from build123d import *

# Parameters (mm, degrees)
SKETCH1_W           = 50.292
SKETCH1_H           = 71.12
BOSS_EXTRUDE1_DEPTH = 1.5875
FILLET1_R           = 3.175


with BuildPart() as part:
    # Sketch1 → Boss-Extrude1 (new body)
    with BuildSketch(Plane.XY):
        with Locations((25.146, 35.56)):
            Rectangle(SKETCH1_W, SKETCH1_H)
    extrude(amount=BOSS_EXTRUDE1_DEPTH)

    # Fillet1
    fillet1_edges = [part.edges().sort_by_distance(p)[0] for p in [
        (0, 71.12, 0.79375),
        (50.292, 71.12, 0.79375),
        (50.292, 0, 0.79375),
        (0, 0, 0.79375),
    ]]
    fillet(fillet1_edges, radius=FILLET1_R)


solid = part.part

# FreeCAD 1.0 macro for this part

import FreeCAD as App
import Part
import Sketcher
from FreeCAD import Vector
Q = App.Units.Quantity


def edges_at(feature, points):
    """Names of the edges that pass closest to the given points."""
    edges = feature.Shape.Edges
    near = lambda p: min(range(len(edges)), key=lambda i: edges[i].distToShape(Part.Vertex(*p))[0])
    return sorted({f"Edge{near(p) + 1}" for p in points})

doc = App.newDocument("Part")
params = doc.addObject("Spreadsheet::Sheet", "Params")
for row, (alias, value) in enumerate([
    ("sketch1_height", "2.8 in"),
    ("sketch1_width", "1.98 in"),
    ("pad1_length", "0.0625 in"),
    ("fillet_radius", "0.125 in"),
], start=1):
    params.set(f"A{row}", alias)
    params.set(f"B{row}", "=" + value)
    params.setAlias(f"B{row}", alias)

body = doc.addObject("PartDesign::Body", "Body")

sketch1 = body.newObject("Sketcher::SketchObject", "Sketch")
sketch1.AttachmentSupport = (doc.getObject("XY_Plane"), [""])
sketch1.MapMode = "FlatFace"
sketch1.addGeometry(Part.LineSegment(Vector(0, 71, 0), Vector(0, 0, 0)), False)
sketch1.addGeometry(Part.LineSegment(Vector(0, 0, 0), Vector(50, 0, 0)), False)
sketch1.addGeometry(Part.LineSegment(Vector(50, 0, 0), Vector(50, 71, 0)), False)
sketch1.addGeometry(Part.LineSegment(Vector(50, 71, 0), Vector(0, 71, 0)), False)
sketch1.addConstraint(Sketcher.Constraint("Coincident", 0, 2, 1, 1))
sketch1.addConstraint(Sketcher.Constraint("Coincident", 1, 2, 2, 1))
sketch1.addConstraint(Sketcher.Constraint("Coincident", 2, 2, 3, 1))
sketch1.addConstraint(Sketcher.Constraint("Coincident", 3, 2, 0, 1))
sketch1.addConstraint(Sketcher.Constraint("Vertical", 0))
sketch1.addConstraint(Sketcher.Constraint("Horizontal", 1))
sketch1.addConstraint(Sketcher.Constraint("Vertical", 2))
sketch1.addConstraint(Sketcher.Constraint("Horizontal", 3))
sketch1.addConstraint(Sketcher.Constraint("Coincident", 0, 2, -1, 1))
sketch1.addConstraint(Sketcher.Constraint("DistanceY", 0, 2, 0, 1, Q("2.8 in")))
sketch1.addConstraint(Sketcher.Constraint("DistanceX", 1, 1, 1, 2, Q("1.98 in")))
sketch1.setExpression("Constraints[9]", "Params.sketch1_height")
sketch1.setExpression("Constraints[10]", "Params.sketch1_width")
pad1 = body.newObject("PartDesign::Pad", "Pad")
pad1.Profile = sketch1
pad1.setExpression("Length", "Params.pad1_length")
doc.recompute()

fillet = body.newObject("PartDesign::Fillet", "Fillet")
fillet.Base = (pad1, edges_at(pad1, [
    (0, 71.12, 0.794),
    (50.292, 71.12, 0.794),
    (50.292, 0, 0.794),
    (0, 0, 0.794),
]))
fillet.setExpression("Radius", "Params.fillet_radius")

doc.recompute()
